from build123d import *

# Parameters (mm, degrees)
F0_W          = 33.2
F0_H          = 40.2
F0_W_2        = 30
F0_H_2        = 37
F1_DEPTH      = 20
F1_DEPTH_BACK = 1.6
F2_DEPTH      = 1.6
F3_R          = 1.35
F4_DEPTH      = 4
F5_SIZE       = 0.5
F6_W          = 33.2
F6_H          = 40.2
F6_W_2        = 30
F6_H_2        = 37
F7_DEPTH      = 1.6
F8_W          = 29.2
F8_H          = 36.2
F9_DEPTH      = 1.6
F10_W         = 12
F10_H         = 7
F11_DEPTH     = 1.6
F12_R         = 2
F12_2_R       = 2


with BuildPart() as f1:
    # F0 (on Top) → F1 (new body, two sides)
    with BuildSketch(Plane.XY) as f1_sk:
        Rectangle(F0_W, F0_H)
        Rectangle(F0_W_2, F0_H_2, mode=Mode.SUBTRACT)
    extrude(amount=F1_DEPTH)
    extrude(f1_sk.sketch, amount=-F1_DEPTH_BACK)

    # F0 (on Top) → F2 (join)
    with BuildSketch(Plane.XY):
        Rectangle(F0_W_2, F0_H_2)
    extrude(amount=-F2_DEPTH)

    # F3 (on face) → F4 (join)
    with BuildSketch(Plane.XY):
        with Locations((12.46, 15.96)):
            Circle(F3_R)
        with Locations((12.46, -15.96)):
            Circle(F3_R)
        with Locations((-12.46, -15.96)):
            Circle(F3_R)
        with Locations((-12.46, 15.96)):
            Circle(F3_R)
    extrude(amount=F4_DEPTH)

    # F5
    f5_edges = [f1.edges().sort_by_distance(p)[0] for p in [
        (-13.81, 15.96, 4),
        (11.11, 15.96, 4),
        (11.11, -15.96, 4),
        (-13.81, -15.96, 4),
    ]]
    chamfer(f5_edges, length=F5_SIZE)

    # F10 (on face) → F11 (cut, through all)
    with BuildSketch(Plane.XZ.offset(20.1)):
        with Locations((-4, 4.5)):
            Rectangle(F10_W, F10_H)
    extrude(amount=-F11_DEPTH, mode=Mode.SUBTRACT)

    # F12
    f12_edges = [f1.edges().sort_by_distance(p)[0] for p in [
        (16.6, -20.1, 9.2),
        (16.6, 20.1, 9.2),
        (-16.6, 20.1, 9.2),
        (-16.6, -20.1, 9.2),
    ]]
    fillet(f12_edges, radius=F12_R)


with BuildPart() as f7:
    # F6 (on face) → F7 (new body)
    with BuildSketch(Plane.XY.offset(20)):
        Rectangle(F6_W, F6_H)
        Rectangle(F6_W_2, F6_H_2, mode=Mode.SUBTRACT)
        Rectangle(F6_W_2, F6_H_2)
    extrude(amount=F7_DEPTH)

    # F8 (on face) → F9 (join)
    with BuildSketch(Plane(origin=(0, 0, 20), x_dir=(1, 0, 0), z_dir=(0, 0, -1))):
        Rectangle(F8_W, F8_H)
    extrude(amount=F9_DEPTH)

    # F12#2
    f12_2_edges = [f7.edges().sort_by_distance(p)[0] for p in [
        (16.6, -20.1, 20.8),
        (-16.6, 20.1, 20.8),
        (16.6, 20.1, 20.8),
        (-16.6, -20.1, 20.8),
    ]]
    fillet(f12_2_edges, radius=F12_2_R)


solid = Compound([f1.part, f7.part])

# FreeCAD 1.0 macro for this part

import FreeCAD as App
import Part
import Sketcher

V = App.Vector


def edges_at(feature, points):
    """Names of the edges that pass closest to the given points."""
    edges = feature.Shape.Edges
    near = lambda p: min(range(len(edges)), key=lambda i: edges[i].distToShape(Part.Vertex(*p))[0])
    return sorted({f"Edge{near(p) + 1}" for p in points})

doc = App.newDocument("Part")
body = doc.addObject("PartDesign::Body", "Body")

# Sketch on XY plane
sketch1 = body.newObject("Sketcher::SketchObject", "Sketch")
sketch1.AttachmentSupport = (doc.getObject("XY_Plane"), [""])
sketch1.MapMode = "FlatFace"
sketch1.addGeometry([
    Part.LineSegment(V(-16.6, 20.1, 0), V(-16.6, -20.1, 0)),  # 0
    Part.LineSegment(V(-16.6, -20.1, 0), V(16.6, -20.1, 0)),  # 1
    Part.LineSegment(V(16.6, -20.1, 0), V(16.6, 20.1, 0)),  # 2
    Part.LineSegment(V(16.6, 20.1, 0), V(-16.6, 20.1, 0)),  # 3
    Part.LineSegment(V(15, -18.5, 0), V(-15, -18.5, 0)),  # 4
    Part.LineSegment(V(-15, -18.5, 0), V(-15, 18.5, 0)),  # 5
    Part.LineSegment(V(-15, 18.5, 0), V(15, 18.5, 0)),  # 6
    Part.LineSegment(V(15, 18.5, 0), V(15, -18.5, 0)),  # 7
], False)
sketch1.addConstraint([
    Sketcher.Constraint("Coincident", 0, 2, 1, 1),
    Sketcher.Constraint("Coincident", 1, 2, 2, 1),
    Sketcher.Constraint("Coincident", 2, 2, 3, 1),
    Sketcher.Constraint("Coincident", 3, 2, 0, 1),
    Sketcher.Constraint("Coincident", 4, 2, 5, 1),
    Sketcher.Constraint("Coincident", 5, 2, 6, 1),
    Sketcher.Constraint("Coincident", 6, 2, 7, 1),
    Sketcher.Constraint("Coincident", 7, 2, 4, 1),
    Sketcher.Constraint("Vertical", 0),
    Sketcher.Constraint("Horizontal", 1),
    Sketcher.Constraint("Vertical", 2),
    Sketcher.Constraint("Horizontal", 3),
    Sketcher.Constraint("Horizontal", 4),
    Sketcher.Constraint("Vertical", 5),
    Sketcher.Constraint("Horizontal", 6),
    Sketcher.Constraint("Vertical", 7),
    Sketcher.Constraint("Symmetric", 0, 2, 2, 2, -1, 1),
    Sketcher.Constraint("Symmetric", 4, 2, 6, 2, -1, 1),
    Sketcher.Constraint("DistanceX", 4, 2, 4, 1, 30.0),
    Sketcher.Constraint("DistanceY", 5, 1, 5, 2, 37.0),
    Sketcher.Constraint("DistanceX", 1, 1, 1, 2, 33.2),
    Sketcher.Constraint("DistanceY", 0, 2, 0, 1, 40.2),
])
pad1 = body.newObject("PartDesign::Pad", "Pad")
pad1.Profile = sketch1
pad1.Type = "TwoLengths"
pad1.Length = 20
pad1.Length2 = 1.6

# Sketch on XY plane
sketch2 = body.newObject("Sketcher::SketchObject", "Sketch001")
sketch2.AttachmentSupport = (doc.getObject("XY_Plane"), [""])
sketch2.MapMode = "FlatFace"
sketch2.addGeometry([
    Part.LineSegment(V(-15, 18.5, 0), V(-15, -18.5, 0)),
    Part.LineSegment(V(-15, -18.5, 0), V(15, -18.5, 0)),
    Part.LineSegment(V(15, -18.5, 0), V(15, 18.5, 0)),
    Part.LineSegment(V(15, 18.5, 0), V(-15, 18.5, 0)),
], False)
sketch2.addConstraint([
    Sketcher.Constraint("Coincident", 0, 2, 1, 1),
    Sketcher.Constraint("Coincident", 1, 2, 2, 1),
    Sketcher.Constraint("Coincident", 2, 2, 3, 1),
    Sketcher.Constraint("Coincident", 3, 2, 0, 1),
    Sketcher.Constraint("Vertical", 0),
    Sketcher.Constraint("Horizontal", 1),
    Sketcher.Constraint("Vertical", 2),
    Sketcher.Constraint("Horizontal", 3),
    Sketcher.Constraint("Symmetric", 0, 2, 2, 2, -1, 1),
    Sketcher.Constraint("DistanceX", 1, 1, 1, 2, 30.0),
    Sketcher.Constraint("DistanceY", 0, 2, 0, 1, 37.0),
])
pad2 = body.newObject("PartDesign::Pad", "Pad001")
pad2.Profile = sketch2
pad2.Length = 1.6
pad2.Reversed = True

# Sketch on XY plane
sketch3 = body.newObject("Sketcher::SketchObject", "Sketch002")
sketch3.AttachmentSupport = (doc.getObject("XY_Plane"), [""])
sketch3.MapMode = "FlatFace"
sketch3.addGeometry([
    Part.Circle(V(12.46, 15.96, 0), V(0, 0, 1), 1.35),
    Part.Circle(V(12.46, -15.96, 0), V(0, 0, 1), 1.35),
    Part.Circle(V(-12.46, -15.96, 0), V(0, 0, 1), 1.35),
    Part.Circle(V(-12.46, 15.96, 0), V(0, 0, 1), 1.35),
], False)
sketch3.addConstraint([
    Sketcher.Constraint("Equal", 0, 1),
    Sketcher.Constraint("Equal", 1, 2),
    Sketcher.Constraint("Equal", 2, 3),
    Sketcher.Constraint("Symmetric", 0, 3, 2, 3, -1, 1),
    Sketcher.Constraint("Symmetric", 1, 3, 3, 3, -1, 1),
    Sketcher.Constraint("Symmetric", 1, 3, 2, 3, -2),
    Sketcher.Constraint("Diameter", 0, 2.7),
    Sketcher.Constraint("DistanceX", -1, 1, 0, 3, 12.46),
    Sketcher.Constraint("DistanceY", -1, 1, 0, 3, 15.96),
])
pad3 = body.newObject("PartDesign::Pad", "Pad002")
pad3.Profile = sketch3
pad3.Length = 4
doc.recompute()

chamfer = body.newObject("PartDesign::Chamfer", "Chamfer")
chamfer.Base = (pad3, edges_at(pad3, [
    (-13.81, 15.96, 4),
    (11.11, 15.96, 4),
    (11.11, -15.96, 4),
    (-13.81, -15.96, 4),
]))
chamfer.Size = 0.5

# Sketch on XZ plane
sketch4 = body.newObject("Sketcher::SketchObject", "Sketch003")
sketch4.AttachmentSupport = (doc.getObject("XZ_Plane"), [""])
sketch4.MapMode = "FlatFace"
sketch4.AttachmentOffset = App.Placement(V(0, 0, 20.1), App.Rotation())
sketch4.addGeometry([
    Part.LineSegment(V(-10, 8, 0), V(-10, 1, 0)),
    Part.LineSegment(V(-10, 1, 0), V(2, 1, 0)),
    Part.LineSegment(V(2, 1, 0), V(2, 8, 0)),
    Part.LineSegment(V(2, 8, 0), V(-10, 8, 0)),
], False)
sketch4.addConstraint([
    Sketcher.Constraint("Coincident", 0, 2, 1, 1),
    Sketcher.Constraint("Coincident", 1, 2, 2, 1),
    Sketcher.Constraint("Coincident", 2, 2, 3, 1),
    Sketcher.Constraint("Coincident", 3, 2, 0, 1),
    Sketcher.Constraint("Vertical", 0),
    Sketcher.Constraint("Horizontal", 1),
    Sketcher.Constraint("Vertical", 2),
    Sketcher.Constraint("Horizontal", 3),
    Sketcher.Constraint("DistanceX", 1, 1, 1, 2, 12.0),
    Sketcher.Constraint("DistanceY", 0, 2, 0, 1, 7.0),
    Sketcher.Constraint("DistanceX", 0, 2, -1, 1, 10.0),
    Sketcher.Constraint("DistanceY", -1, 1, 0, 2, 1.0),
])
pocket1 = body.newObject("PartDesign::Pocket", "Pocket")
pocket1.Profile = sketch4
pocket1.Length = 1.6
doc.recompute()

fillet = body.newObject("PartDesign::Fillet", "Fillet")
fillet.Base = (pocket1, edges_at(pocket1, [
    (16.6, -20.1, 9.2),
    (16.6, 20.1, 9.2),
    (-16.6, 20.1, 9.2),
    (-16.6, -20.1, 9.2),
]))
fillet.Radius = 2
body2 = doc.addObject("PartDesign::Body", "Body001")

# Sketch on XY plane
sketch5 = body2.newObject("Sketcher::SketchObject", "Sketch004")
sketch5.AttachmentSupport = (doc.getObject("XY_Plane001"), [""])
sketch5.MapMode = "FlatFace"
sketch5.AttachmentOffset = App.Placement(V(0, 0, 20), App.Rotation())
sketch5.addGeometry([
    Part.LineSegment(V(-16.6, 20.1, 0), V(-16.6, -20.1, 0)),
    Part.LineSegment(V(-16.6, -20.1, 0), V(16.6, -20.1, 0)),
    Part.LineSegment(V(16.6, -20.1, 0), V(16.6, 20.1, 0)),
    Part.LineSegment(V(16.6, 20.1, 0), V(-16.6, 20.1, 0)),
], False)
sketch5.addConstraint([
    Sketcher.Constraint("Coincident", 0, 2, 1, 1),
    Sketcher.Constraint("Coincident", 1, 2, 2, 1),
    Sketcher.Constraint("Coincident", 2, 2, 3, 1),
    Sketcher.Constraint("Coincident", 3, 2, 0, 1),
    Sketcher.Constraint("Vertical", 0),
    Sketcher.Constraint("Horizontal", 1),
    Sketcher.Constraint("Vertical", 2),
    Sketcher.Constraint("Horizontal", 3),
    Sketcher.Constraint("Symmetric", 0, 2, 2, 2, -1, 1),
    Sketcher.Constraint("DistanceX", 1, 1, 1, 2, 33.2),
    Sketcher.Constraint("DistanceY", 0, 2, 0, 1, 40.2),
])
pad4 = body2.newObject("PartDesign::Pad", "Pad003")
pad4.Profile = sketch5
pad4.Length = 1.6

# Sketch on XY plane
sketch6 = body2.newObject("Sketcher::SketchObject", "Sketch005")
sketch6.AttachmentSupport = (doc.getObject("XY_Plane001"), [""])
sketch6.MapMode = "FlatFace"
sketch6.AttachmentOffset = App.Placement(V(0, 0, 20), App.Rotation())
sketch6.addGeometry([
    Part.LineSegment(V(-14.6, -18.1, 0), V(-14.6, 18.1, 0)),
    Part.LineSegment(V(-14.6, 18.1, 0), V(14.6, 18.1, 0)),
    Part.LineSegment(V(14.6, 18.1, 0), V(14.6, -18.1, 0)),
    Part.LineSegment(V(14.6, -18.1, 0), V(-14.6, -18.1, 0)),
], False)
sketch6.addConstraint([
    Sketcher.Constraint("Coincident", 0, 2, 1, 1),
    Sketcher.Constraint("Coincident", 1, 2, 2, 1),
    Sketcher.Constraint("Coincident", 2, 2, 3, 1),
    Sketcher.Constraint("Coincident", 3, 2, 0, 1),
    Sketcher.Constraint("Vertical", 0),
    Sketcher.Constraint("Horizontal", 1),
    Sketcher.Constraint("Vertical", 2),
    Sketcher.Constraint("Horizontal", 3),
    Sketcher.Constraint("Symmetric", 0, 2, 2, 2, -1, 1),
    Sketcher.Constraint("DistanceX", 1, 1, 1, 2, 29.2),
    Sketcher.Constraint("DistanceY", 0, 1, 0, 2, 36.2),
])
pad5 = body2.newObject("PartDesign::Pad", "Pad004")
pad5.Profile = sketch6
pad5.Length = 1.6
pad5.Reversed = True
doc.recompute()

fillet2 = body2.newObject("PartDesign::Fillet", "Fillet001")
fillet2.Base = (pad5, edges_at(pad5, [
    (16.6, -20.1, 20.8),
    (-16.6, 20.1, 20.8),
    (16.6, 20.1, 20.8),
    (-16.6, -20.1, 20.8),
]))
fillet2.Radius = 2

doc.recompute()
